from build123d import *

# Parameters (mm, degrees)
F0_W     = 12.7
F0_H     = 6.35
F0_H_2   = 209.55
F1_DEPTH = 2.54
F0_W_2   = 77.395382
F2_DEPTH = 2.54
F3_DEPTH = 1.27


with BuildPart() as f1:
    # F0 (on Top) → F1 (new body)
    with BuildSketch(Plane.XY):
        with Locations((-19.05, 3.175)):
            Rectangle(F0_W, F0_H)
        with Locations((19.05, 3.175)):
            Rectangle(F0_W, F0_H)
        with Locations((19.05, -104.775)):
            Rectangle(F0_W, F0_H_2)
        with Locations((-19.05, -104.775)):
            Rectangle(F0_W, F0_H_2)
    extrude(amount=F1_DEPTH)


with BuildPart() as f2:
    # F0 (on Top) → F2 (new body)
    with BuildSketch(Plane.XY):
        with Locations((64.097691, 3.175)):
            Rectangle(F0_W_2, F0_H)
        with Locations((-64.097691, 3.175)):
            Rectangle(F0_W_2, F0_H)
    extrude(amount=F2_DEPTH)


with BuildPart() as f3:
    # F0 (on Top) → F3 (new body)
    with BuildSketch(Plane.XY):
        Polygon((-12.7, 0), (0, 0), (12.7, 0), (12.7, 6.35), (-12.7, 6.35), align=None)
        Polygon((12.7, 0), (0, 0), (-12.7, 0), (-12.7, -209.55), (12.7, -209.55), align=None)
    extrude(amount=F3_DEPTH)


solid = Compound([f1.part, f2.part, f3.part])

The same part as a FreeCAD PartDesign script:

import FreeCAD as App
import Part
import Sketcher

V = App.Vector
Q = App.Units.Quantity


def add_polygon(sketch, points):
    """Adds a closed chain of lines whose ends are joined by coincident constraints."""
    first, n = sketch.GeometryCount, len(points)
    for a, b in zip(points, points[1:] + points[:1]):
        sketch.addGeometry(Part.LineSegment(App.Vector(*a, 0), App.Vector(*b, 0)), False)
    for i in range(n):
        sketch.addConstraint(Sketcher.Constraint("Coincident", first + i, 2, first + (i + 1) % n, 1))

doc = App.newDocument("Part")
body = doc.addObject("PartDesign::Body", "Body")
body.AllowCompound = True

# Sketch on XY plane
sketch1 = body.newObject("Sketcher::SketchObject", "Sketch")
sketch1.AttachmentSupport = (doc.getObject("XY_Plane"), [""])
sketch1.MapMode = "FlatFace"
add_polygon(sketch1, [(-25, 6), (-25, -210), (-13, -210), (-13, 6)])  # lines 0-3
add_polygon(sketch1, [(13, 6), (13, -210), (25, -210), (25, 6)])  # lines 4-7
sketch1.addConstraint([
    Sketcher.Constraint("Vertical", 0),
    Sketcher.Constraint("Horizontal", 1),
    Sketcher.Constraint("Vertical", 2),
    Sketcher.Constraint("Horizontal", 3),
    Sketcher.Constraint("Vertical", 4),
    Sketcher.Constraint("Horizontal", 5),
    Sketcher.Constraint("Vertical", 6),
    Sketcher.Constraint("Horizontal", 7),
    Sketcher.Constraint("Symmetric", 1, 2, 4, 2, -2),
    Sketcher.Constraint("Symmetric", 3, 2, 6, 2, -2),
    Sketcher.Constraint("DistanceX", 1, 1, 1, 2, Q("0.5 in")),
    Sketcher.Constraint("DistanceY", 0, 2, 0, 1, Q("8.5 in")),
    Sketcher.Constraint("DistanceX", 0, 2, -1, 1, Q("1 in")),
    Sketcher.Constraint("DistanceY", 0, 2, -1, 1, Q("8.25 in")),
])
pad1 = body.newObject("PartDesign::Pad", "Pad")
pad1.Profile = sketch1
pad1.Length = Q("0.1 in")
body2 = doc.addObject("PartDesign::Body", "Body001")
body2.AllowCompound = True

# Sketch on XY plane
sketch2 = body2.newObject("Sketcher::SketchObject", "Sketch001")
sketch2.AttachmentSupport = (doc.getObject("XY_Plane001"), [""])
sketch2.MapMode = "FlatFace"
add_polygon(sketch2, [(25, 6), (25, 0), (103, 0), (103, 6)])  # lines 0-3
add_polygon(sketch2, [(-103, 6), (-103, 0), (-25, 0), (-25, 6)])  # lines 4-7
sketch2.addConstraint([
    Sketcher.Constraint("Vertical", 0),
    Sketcher.Constraint("Horizontal", 1),
    Sketcher.Constraint("Vertical", 2),
    Sketcher.Constraint("Horizontal", 3),
    Sketcher.Constraint("Vertical", 4),
    Sketcher.Constraint("Horizontal", 5),
    Sketcher.Constraint("Vertical", 6),
    Sketcher.Constraint("Horizontal", 7),
    Sketcher.Constraint("Symmetric", 1, 2, 4, 2, -1, 1),
    Sketcher.Constraint("Symmetric", 0, 2, 5, 2, -2),
    Sketcher.Constraint("Horizontal", 3, 2, 6, 2),
    Sketcher.Constraint("DistanceX", -1, 1, 0, 2, Q("1 in")),
    Sketcher.Constraint("DistanceY", 0, 2, 0, 1, Q("0.25 in")),
    Sketcher.Constraint("DistanceX", 1, 1, 1, 2, Q("77.395382 mm")),
])
pad2 = body2.newObject("PartDesign::Pad", "Pad001")
pad2.Profile = sketch2
pad2.Length = Q("0.1 in")
body3 = doc.addObject("PartDesign::Body", "Body002")

# Sketch on XY plane
sketch3 = body3.newObject("Sketcher::SketchObject", "Sketch002")
sketch3.AttachmentSupport = (doc.getObject("XY_Plane002"), [""])
sketch3.MapMode = "FlatFace"
add_polygon(sketch3, [(13, 6), (-13, 6), (-13, -210), (13, -210)])  # lines 0-3
sketch3.addConstraint([
    Sketcher.Constraint("Horizontal", 0),
    Sketcher.Constraint("Vertical", 1),
    Sketcher.Constraint("Horizontal", 2),
    Sketcher.Constraint("Vertical", 3),
    Sketcher.Constraint("DistanceX", 0, 2, 0, 1, Q("1 in")),
    Sketcher.Constraint("DistanceY", 1, 2, 1, 1, Q("8.5 in")),
    Sketcher.Constraint("DistanceX", 0, 2, -1, 1, Q("0.5 in")),
    Sketcher.Constraint("DistanceY", -1, 1, 0, 2, Q("0.25 in")),
])
pad3 = body3.newObject("PartDesign::Pad", "Pad002")
pad3.Profile = sketch3
pad3.Length = Q("0.05 in")

doc.recompute()
